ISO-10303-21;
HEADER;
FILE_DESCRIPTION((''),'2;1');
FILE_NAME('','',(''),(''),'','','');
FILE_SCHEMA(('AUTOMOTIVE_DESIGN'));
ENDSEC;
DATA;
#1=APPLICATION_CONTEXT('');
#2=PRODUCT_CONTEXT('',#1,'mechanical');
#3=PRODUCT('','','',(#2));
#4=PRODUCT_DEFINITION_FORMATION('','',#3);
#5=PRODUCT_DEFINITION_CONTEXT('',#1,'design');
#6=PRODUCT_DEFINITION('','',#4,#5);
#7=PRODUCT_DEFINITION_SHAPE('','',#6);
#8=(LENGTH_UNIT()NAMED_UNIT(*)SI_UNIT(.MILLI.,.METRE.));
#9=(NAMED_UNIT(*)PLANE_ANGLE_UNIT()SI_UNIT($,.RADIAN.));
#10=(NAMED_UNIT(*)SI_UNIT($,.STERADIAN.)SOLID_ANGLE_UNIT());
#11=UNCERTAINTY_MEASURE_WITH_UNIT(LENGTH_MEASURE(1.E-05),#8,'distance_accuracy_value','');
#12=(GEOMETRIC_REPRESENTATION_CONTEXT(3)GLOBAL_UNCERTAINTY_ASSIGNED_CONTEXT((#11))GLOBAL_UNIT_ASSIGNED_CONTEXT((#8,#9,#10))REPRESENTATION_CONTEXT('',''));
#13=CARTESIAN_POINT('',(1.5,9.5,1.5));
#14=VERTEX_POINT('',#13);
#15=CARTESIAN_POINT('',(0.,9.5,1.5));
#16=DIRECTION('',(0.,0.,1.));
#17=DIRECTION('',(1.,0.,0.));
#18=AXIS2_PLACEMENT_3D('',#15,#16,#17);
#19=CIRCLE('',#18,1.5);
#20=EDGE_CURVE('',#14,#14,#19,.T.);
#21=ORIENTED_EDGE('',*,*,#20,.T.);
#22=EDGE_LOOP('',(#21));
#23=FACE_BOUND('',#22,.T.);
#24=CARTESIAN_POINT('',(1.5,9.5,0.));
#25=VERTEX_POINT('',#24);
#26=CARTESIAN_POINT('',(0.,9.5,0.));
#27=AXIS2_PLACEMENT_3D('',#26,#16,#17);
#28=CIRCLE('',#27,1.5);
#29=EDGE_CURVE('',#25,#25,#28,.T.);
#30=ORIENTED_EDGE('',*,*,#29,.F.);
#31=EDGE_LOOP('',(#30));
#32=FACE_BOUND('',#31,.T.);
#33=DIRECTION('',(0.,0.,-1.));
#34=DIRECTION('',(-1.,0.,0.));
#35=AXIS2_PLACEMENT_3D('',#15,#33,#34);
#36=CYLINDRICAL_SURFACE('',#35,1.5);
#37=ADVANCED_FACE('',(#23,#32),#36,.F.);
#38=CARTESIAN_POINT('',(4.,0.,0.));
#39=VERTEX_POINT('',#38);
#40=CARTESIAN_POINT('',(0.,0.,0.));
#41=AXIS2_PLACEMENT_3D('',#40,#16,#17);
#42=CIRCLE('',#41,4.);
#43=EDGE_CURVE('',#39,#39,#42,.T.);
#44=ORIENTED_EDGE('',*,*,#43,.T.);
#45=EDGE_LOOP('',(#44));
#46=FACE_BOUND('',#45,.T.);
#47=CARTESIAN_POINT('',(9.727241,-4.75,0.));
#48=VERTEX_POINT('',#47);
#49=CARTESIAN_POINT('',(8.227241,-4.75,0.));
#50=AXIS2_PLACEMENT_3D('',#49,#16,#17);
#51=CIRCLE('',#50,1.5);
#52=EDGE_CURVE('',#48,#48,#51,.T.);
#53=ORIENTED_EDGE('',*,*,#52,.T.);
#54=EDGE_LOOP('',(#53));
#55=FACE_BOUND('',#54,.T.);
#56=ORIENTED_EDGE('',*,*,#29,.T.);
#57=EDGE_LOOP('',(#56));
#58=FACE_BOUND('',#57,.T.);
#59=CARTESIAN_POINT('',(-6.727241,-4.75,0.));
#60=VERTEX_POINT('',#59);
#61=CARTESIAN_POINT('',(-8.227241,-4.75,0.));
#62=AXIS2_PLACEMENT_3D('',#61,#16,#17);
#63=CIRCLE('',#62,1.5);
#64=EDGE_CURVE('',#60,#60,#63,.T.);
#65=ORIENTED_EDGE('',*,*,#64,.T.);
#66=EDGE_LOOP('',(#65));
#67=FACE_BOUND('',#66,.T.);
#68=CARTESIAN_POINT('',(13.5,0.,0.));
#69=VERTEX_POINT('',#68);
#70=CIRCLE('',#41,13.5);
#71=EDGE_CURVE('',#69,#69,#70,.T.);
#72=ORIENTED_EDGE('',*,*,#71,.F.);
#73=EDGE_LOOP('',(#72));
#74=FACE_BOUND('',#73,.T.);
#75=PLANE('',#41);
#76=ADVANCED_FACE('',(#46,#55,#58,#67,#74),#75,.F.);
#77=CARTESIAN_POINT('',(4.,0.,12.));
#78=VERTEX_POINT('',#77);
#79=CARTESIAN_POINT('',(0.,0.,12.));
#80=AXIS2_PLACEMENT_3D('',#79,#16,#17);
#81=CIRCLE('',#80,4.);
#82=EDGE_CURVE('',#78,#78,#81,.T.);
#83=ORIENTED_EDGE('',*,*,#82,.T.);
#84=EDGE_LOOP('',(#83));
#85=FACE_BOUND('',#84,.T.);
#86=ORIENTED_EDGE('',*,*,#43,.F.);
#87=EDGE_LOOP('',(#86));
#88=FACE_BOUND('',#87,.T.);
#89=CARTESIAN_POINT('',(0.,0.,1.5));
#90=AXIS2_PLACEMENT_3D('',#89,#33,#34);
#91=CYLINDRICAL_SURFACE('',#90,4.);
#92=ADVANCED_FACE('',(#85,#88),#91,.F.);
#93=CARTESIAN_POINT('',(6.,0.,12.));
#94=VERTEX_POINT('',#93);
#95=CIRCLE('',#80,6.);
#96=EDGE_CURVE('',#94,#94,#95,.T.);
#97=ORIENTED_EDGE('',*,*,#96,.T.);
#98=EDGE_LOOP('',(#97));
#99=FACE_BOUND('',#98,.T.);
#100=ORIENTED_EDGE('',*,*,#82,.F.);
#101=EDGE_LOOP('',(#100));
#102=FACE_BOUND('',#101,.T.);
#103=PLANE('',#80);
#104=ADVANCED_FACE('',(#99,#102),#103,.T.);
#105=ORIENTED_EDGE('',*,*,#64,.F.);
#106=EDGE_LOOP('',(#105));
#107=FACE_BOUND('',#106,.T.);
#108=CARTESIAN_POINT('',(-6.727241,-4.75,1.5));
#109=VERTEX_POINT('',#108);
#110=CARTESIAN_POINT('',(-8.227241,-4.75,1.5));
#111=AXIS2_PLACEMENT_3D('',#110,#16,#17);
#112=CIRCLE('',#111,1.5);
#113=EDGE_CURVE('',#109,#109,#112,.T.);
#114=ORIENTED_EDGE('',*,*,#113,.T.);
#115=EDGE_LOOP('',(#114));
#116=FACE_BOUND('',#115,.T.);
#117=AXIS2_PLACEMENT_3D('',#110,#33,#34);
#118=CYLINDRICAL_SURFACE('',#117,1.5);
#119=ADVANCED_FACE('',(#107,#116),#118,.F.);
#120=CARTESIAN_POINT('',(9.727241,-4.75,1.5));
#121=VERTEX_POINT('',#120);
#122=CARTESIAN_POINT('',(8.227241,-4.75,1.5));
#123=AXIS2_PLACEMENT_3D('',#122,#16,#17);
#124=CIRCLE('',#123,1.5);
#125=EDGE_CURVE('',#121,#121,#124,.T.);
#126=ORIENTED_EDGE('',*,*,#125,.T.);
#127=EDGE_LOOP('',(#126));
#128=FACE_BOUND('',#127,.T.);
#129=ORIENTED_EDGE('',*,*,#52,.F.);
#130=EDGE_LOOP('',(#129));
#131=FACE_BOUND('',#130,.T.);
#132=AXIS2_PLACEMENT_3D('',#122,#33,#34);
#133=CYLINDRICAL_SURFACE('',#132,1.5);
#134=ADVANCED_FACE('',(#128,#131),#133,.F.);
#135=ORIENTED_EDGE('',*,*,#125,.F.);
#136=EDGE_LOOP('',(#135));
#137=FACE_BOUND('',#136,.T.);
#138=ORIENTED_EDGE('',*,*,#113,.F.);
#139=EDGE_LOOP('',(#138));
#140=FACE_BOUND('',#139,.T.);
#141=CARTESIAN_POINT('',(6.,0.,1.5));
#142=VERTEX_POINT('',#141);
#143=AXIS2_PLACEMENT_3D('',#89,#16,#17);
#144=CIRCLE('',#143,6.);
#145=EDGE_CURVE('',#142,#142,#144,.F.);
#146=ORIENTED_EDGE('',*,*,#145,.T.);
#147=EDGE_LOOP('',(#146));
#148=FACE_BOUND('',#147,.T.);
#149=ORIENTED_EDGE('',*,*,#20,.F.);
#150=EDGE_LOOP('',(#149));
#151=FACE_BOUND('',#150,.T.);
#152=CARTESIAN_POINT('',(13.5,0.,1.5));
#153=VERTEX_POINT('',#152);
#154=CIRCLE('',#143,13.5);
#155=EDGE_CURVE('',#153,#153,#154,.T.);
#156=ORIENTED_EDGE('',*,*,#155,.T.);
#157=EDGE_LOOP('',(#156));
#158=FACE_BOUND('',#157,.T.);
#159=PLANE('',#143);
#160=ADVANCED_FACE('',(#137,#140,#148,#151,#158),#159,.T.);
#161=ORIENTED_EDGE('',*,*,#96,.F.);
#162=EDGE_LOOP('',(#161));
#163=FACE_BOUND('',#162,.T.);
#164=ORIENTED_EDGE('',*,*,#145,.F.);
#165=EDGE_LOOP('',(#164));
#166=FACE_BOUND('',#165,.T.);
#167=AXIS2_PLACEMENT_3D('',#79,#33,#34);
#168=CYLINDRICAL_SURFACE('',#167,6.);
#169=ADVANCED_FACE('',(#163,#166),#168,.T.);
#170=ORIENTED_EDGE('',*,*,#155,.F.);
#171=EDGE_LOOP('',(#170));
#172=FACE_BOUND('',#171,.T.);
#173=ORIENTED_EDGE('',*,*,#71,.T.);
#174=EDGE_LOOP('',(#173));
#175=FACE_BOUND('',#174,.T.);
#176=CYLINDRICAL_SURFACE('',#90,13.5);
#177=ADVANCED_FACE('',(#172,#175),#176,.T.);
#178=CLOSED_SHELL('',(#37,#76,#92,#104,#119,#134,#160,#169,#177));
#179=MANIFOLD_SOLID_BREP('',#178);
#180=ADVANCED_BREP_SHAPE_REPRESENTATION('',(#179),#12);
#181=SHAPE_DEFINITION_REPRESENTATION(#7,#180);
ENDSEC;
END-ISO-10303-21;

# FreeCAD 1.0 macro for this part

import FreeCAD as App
import Part
import Sketcher
Q = App.Units.Quantity

doc = App.newDocument("Part")
params = doc.addObject("Spreadsheet::Sheet", "Params")
for row, (alias, value) in enumerate([
    ("sketch1_diameter", "27 mm"),
    ("sketch1_diameter2", "3 mm"),
    ("sketch1_diameter3", "8 mm"),
    ("pad1_length", "1.5 mm"),
    ("sketch2_diameter", "12 mm"),
    ("sketch2_diameter2", "8 mm"),
    ("pad2_length", "12 mm"),
], start=1):
    params.set(f"A{row}", alias)
    params.set(f"B{row}", "=" + value)
    params.setAlias(f"B{row}", alias)

body = doc.addObject("PartDesign::Body", "Body")

sketch1 = doc.addObject("Sketcher::SketchObject", "Sketch")
body.addObject(sketch1)
sketch1.AttachmentSupport = (doc.XY_Plane, [""])
sketch1.MapMode = "FlatFace"
sketch1.addGeometry([
    Part.Circle(App.Vector(0, 0, 0), App.Vector(0, 0, 1), 13.5),
    Part.Circle(App.Vector(-8.2, -4.8, 0), App.Vector(0, 0, 1), 1.5),
    Part.Circle(App.Vector(0, 0, 0), App.Vector(0, 0, 1), 4),
    Part.Circle(App.Vector(8.2, -4.8, 0), App.Vector(0, 0, 1), 1.5),
    Part.Circle(App.Vector(0, 9.5, 0), App.Vector(0, 0, 1), 1.5),
], False)
sketch1.addConstraint([
    Sketcher.Constraint("Coincident", 0, 3, -1, 1),
    Sketcher.Constraint("Coincident", 2, 3, -1, 1),
    Sketcher.Constraint("Equal", 1, 3),
    Sketcher.Constraint("Equal", 3, 4),
    Sketcher.Constraint("Symmetric", 1, 3, 3, 3, -2),
    Sketcher.Constraint("PointOnObject", 4, 3, -2),
    Sketcher.Constraint("Diameter", 0, Q("27 mm")),
    Sketcher.Constraint("Diameter", 1, Q("3 mm")),
    Sketcher.Constraint("Diameter", 2, Q("8 mm")),
    Sketcher.Constraint("DistanceY", -1, 1, 4, 3, Q("9.5 mm")),
    Sketcher.Constraint("DistanceY", 1, 3, -1, 1, Q("4.75 mm")),
    Sketcher.Constraint("DistanceX", 1, 3, -1, 1, Q("8.227241 mm")),
])
sketch1.setExpression("Constraints[6]", "Params.sketch1_diameter")
sketch1.setExpression("Constraints[7]", "Params.sketch1_diameter2")
sketch1.setExpression("Constraints[8]", "Params.sketch1_diameter3")
pad1 = doc.addObject("PartDesign::Pad", "Pad")
body.addObject(pad1)
pad1.Profile = sketch1
pad1.setExpression("Length", "Params.pad1_length")

sketch2 = doc.addObject("Sketcher::SketchObject", "Sketch001")
body.addObject(sketch2)
sketch2.AttachmentSupport = (doc.XY_Plane, [""])
sketch2.MapMode = "FlatFace"
sketch2.addGeometry([
    Part.Circle(App.Vector(0, 0, 0), App.Vector(0, 0, 1), 6),
    Part.Circle(App.Vector(0, 0, 0), App.Vector(0, 0, 1), 4),
], False)
sketch2.addConstraint([
    Sketcher.Constraint("Coincident", 0, 3, -1, 1),
    Sketcher.Constraint("Coincident", 1, 3, -1, 1),
    Sketcher.Constraint("Diameter", 0, Q("12 mm")),
    Sketcher.Constraint("Diameter", 1, Q("8 mm")),
])
sketch2.setExpression("Constraints[2]", "Params.sketch2_diameter")
sketch2.setExpression("Constraints[3]", "Params.sketch2_diameter2")
pad2 = doc.addObject("PartDesign::Pad", "Pad001")
body.addObject(pad2)
pad2.Profile = sketch2
pad2.setExpression("Length", "Params.pad2_length")

doc.recompute()
